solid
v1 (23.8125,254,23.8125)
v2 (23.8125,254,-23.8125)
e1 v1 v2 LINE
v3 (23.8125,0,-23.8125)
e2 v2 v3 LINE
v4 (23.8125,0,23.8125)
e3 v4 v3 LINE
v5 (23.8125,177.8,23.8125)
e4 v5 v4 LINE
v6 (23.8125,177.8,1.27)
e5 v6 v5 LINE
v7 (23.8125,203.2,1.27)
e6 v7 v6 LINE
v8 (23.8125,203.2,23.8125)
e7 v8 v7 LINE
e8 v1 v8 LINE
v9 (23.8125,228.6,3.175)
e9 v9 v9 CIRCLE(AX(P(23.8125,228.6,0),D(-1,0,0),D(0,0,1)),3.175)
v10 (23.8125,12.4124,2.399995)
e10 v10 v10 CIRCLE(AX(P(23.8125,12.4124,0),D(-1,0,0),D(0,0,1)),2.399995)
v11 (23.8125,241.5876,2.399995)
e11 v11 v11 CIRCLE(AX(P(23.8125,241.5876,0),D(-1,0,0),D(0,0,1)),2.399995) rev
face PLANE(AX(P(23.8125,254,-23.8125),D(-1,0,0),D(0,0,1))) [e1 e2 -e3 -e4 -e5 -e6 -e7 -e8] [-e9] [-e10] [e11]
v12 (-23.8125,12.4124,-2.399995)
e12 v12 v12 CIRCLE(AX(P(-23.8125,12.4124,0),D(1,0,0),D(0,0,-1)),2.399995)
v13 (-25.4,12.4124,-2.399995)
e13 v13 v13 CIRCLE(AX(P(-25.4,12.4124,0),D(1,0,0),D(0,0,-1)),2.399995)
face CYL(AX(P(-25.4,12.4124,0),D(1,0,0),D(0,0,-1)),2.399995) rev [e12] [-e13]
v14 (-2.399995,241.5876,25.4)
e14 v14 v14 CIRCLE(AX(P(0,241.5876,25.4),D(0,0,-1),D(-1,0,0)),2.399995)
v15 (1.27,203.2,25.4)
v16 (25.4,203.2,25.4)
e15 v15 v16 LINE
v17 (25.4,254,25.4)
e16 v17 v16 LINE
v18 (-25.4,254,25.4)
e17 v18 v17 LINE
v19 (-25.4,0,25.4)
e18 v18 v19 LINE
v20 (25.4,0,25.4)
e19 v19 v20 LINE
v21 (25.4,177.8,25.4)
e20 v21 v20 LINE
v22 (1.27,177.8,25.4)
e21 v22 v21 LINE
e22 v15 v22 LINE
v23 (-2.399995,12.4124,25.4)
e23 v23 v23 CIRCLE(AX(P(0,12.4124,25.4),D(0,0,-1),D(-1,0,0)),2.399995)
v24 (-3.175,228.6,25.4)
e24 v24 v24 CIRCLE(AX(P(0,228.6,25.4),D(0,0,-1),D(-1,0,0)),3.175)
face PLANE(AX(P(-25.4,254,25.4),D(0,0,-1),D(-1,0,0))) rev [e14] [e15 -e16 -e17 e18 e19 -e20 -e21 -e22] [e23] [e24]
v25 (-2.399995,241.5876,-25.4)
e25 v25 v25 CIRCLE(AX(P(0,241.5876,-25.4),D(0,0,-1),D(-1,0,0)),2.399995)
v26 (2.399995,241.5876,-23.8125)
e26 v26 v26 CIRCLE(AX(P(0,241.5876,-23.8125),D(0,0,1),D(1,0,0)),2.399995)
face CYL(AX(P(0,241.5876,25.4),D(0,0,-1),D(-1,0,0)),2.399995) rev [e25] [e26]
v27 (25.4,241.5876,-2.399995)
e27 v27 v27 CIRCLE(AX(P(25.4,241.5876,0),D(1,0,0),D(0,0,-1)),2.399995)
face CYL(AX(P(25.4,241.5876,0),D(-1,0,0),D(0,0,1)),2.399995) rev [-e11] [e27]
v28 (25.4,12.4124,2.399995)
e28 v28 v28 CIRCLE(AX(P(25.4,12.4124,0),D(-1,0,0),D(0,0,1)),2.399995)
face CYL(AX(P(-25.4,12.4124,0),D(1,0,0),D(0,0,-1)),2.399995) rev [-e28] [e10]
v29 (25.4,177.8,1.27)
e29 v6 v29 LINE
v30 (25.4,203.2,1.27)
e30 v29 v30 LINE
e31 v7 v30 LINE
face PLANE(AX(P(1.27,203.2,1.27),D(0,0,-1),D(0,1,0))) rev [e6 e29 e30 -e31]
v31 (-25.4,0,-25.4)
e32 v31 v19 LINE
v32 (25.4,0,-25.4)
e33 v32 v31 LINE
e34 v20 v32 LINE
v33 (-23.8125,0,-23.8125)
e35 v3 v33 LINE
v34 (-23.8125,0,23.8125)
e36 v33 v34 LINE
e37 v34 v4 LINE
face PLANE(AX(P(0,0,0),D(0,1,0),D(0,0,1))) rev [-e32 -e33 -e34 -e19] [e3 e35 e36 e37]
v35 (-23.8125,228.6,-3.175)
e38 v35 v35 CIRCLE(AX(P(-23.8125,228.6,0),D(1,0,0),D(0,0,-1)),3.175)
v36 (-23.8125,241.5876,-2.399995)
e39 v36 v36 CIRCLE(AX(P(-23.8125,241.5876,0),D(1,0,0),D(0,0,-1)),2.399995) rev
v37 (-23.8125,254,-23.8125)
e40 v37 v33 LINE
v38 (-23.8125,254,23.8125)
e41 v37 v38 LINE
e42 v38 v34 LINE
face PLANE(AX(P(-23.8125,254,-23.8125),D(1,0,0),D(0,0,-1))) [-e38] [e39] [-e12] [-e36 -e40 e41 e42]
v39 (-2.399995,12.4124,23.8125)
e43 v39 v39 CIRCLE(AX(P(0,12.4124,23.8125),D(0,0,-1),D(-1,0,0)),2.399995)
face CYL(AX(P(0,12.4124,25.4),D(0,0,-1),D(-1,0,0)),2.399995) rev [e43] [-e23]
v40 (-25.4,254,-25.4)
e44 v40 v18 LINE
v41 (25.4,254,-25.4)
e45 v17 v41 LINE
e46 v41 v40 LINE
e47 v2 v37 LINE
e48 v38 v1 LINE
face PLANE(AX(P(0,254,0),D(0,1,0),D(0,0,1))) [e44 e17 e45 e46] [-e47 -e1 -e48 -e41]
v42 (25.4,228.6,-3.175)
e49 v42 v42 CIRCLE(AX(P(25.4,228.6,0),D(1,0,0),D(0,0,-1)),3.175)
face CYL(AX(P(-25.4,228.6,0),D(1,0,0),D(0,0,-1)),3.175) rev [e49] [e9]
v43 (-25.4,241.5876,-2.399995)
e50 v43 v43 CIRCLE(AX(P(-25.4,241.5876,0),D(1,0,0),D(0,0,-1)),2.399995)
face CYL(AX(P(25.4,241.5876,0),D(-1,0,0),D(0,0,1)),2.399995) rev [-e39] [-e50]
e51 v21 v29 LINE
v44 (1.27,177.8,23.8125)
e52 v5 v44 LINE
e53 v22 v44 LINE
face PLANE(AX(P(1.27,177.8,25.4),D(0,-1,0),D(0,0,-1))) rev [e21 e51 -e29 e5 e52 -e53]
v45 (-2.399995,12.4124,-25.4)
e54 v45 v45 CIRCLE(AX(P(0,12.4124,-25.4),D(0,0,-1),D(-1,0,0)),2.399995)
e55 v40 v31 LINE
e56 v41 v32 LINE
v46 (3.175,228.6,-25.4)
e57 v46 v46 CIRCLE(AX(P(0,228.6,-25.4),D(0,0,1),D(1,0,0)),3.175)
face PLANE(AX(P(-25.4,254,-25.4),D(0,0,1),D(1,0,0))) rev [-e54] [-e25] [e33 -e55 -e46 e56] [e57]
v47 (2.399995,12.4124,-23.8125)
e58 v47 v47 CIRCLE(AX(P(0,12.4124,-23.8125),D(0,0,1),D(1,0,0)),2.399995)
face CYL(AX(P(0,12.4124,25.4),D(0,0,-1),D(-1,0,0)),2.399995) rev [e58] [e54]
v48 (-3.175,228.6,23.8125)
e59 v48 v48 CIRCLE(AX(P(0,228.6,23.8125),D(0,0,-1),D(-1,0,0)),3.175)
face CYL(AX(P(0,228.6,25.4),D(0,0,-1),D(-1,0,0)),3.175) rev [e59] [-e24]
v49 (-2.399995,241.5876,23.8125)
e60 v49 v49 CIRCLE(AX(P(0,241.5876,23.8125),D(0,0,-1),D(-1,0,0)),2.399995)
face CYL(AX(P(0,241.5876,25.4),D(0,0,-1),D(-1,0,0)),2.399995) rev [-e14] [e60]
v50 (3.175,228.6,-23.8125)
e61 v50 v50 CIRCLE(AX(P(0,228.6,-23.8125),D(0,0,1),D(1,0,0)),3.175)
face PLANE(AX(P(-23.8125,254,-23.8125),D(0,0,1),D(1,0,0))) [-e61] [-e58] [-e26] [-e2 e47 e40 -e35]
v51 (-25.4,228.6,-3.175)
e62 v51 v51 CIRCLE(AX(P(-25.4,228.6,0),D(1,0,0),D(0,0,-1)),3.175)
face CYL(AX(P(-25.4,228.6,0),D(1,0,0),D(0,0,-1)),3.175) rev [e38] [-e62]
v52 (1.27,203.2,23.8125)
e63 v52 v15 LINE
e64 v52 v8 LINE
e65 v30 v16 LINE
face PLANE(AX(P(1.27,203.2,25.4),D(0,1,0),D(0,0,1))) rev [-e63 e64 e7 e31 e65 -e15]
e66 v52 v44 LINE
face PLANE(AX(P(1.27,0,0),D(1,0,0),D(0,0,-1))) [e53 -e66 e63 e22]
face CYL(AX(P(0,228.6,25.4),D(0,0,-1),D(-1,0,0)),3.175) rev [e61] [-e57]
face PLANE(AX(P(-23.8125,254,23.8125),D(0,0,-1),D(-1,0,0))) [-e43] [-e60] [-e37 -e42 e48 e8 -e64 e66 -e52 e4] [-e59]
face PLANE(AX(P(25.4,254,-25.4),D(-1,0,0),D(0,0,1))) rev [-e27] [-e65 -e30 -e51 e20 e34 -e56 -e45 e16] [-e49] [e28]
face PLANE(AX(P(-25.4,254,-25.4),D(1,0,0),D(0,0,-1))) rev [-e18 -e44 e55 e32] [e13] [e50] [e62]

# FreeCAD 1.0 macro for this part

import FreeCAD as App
import Part
import Sketcher
Q = App.Units.Quantity


def add_polygon(sketch, points):
    """Adds a closed chain of lines whose ends are joined by coincident constraints."""
    first, n = sketch.GeometryCount, len(points)
    for a, b in zip(points, points[1:] + points[:1]):
        sketch.addGeometry(Part.LineSegment(App.Vector(*a, 0), App.Vector(*b, 0)), False)
    for i in range(n):
        sketch.addConstraint(Sketcher.Constraint("Coincident", first + i, 2, first + (i + 1) % n, 1))

doc = App.newDocument("Part")
params = doc.addObject("Spreadsheet::Sheet", "Params")
for row, (alias, value) in enumerate([
    ("sketch1_width", "2 in"),
    ("sketch1_width2", "1.875 in"),
    ("pad1_length", "10 in"),
    ("sketch6_diameter", "0.25 in"),
    ("sketch7_diameter", "0.25 in"),
    ("sketch8_width", "1 in"),
    ("sketch8_height", "0.95 in"),
    ("pocket7_length", "0.95 in"),
], start=1):
    params.set(f"A{row}", alias)
    params.set(f"B{row}", "=" + value)
    params.setAlias(f"B{row}", alias)

body = doc.addObject("PartDesign::Body", "Body")

# Sketch on XZ plane
sketch1 = body.newObject("Sketcher::SketchObject", "Sketch")
sketch1.AttachmentSupport = (doc.getObject("XZ_Plane"), [""])
sketch1.MapMode = "FlatFace"
add_polygon(sketch1, [(-25, -25), (-25, 25), (25, 25), (25, -25)])  # lines 0-3
add_polygon(sketch1, [(24, 24), (-24, 24), (-24, -24), (24, -24)])  # lines 4-7
sketch1.addConstraint(Sketcher.Constraint("Vertical", 0))
sketch1.addConstraint(Sketcher.Constraint("Horizontal", 1))
sketch1.addConstraint(Sketcher.Constraint("Vertical", 2))
sketch1.addConstraint(Sketcher.Constraint("Horizontal", 3))
sketch1.addConstraint(Sketcher.Constraint("Horizontal", 4))
sketch1.addConstraint(Sketcher.Constraint("Vertical", 5))
sketch1.addConstraint(Sketcher.Constraint("Horizontal", 6))
sketch1.addConstraint(Sketcher.Constraint("Vertical", 7))
sketch1.addConstraint(Sketcher.Constraint("Symmetric", 0, 2, 2, 2, -1, 1))
sketch1.addConstraint(Sketcher.Constraint("Symmetric", 4, 2, 6, 2, -1, 1))
sketch1.addConstraint(Sketcher.Constraint("Equal", 3, 0))
sketch1.addConstraint(Sketcher.Constraint("Equal", 6, 5))
sketch1.addConstraint(Sketcher.Constraint("DistanceX", 1, 1, 1, 2, Q("2 in")))
sketch1.addConstraint(Sketcher.Constraint("DistanceX", 4, 2, 4, 1, Q("1.875 in")))
sketch1.setExpression("Constraints[20]", "Params.sketch1_width")
sketch1.setExpression("Constraints[21]", "Params.sketch1_width2")
pad1 = body.newObject("PartDesign::Pad", "Pad")
pad1.Profile = sketch1
pad1.setExpression("Length", "Params.pad1_length")
pad1.Reversed = True

# Sketch on YZ plane
sketch2 = body.newObject("Sketcher::SketchObject", "Sketch001")
sketch2.AttachmentSupport = (doc.getObject("YZ_Plane"), [""])
sketch2.MapMode = "FlatFace"
sketch2.AttachmentOffset = App.Placement(App.Vector(0, 0, -0.9375 * 25.4), App.Rotation())
sketch2.addGeometry(Part.Circle(App.Vector(241.6, 0, 0), App.Vector(0, 0, 1), 2.4), False)
sketch2.addConstraint(Sketcher.Constraint("PointOnObject", 0, 3, -1))
sketch2.addConstraint(Sketcher.Constraint("Diameter", 0, Q("4.79999 mm")))
sketch2.addConstraint(Sketcher.Constraint("DistanceX", -1, 1, 0, 3, Q("241.5876 mm")))
pocket1 = body.newObject("PartDesign::Pocket", "Pocket")
pocket1.Profile = sketch2
pocket1.Type = "ThroughAll"
pocket1.Midplane = True

# Sketch on XY plane
sketch3 = body.newObject("Sketcher::SketchObject", "Sketch002")
sketch3.AttachmentSupport = (doc.getObject("XY_Plane"), [""])
sketch3.MapMode = "FlatFace"
sketch3.AttachmentOffset = App.Placement(App.Vector(0, 0, -1 * 25.4), App.Rotation())
sketch3.addGeometry(Part.Circle(App.Vector(0, 241.6, 0), App.Vector(0, 0, 1), 2.4), False)
sketch3.addConstraint(Sketcher.Constraint("PointOnObject", 0, 3, -2))
sketch3.addConstraint(Sketcher.Constraint("Diameter", 0, Q("4.79999 mm")))
sketch3.addConstraint(Sketcher.Constraint("DistanceY", -1, 1, 0, 3, Q("241.5876 mm")))
pocket2 = body.newObject("PartDesign::Pocket", "Pocket001")
pocket2.Profile = sketch3
pocket2.Type = "ThroughAll"
pocket2.Reversed = True

# Sketch on YZ plane
sketch4 = body.newObject("Sketcher::SketchObject", "Sketch003")
sketch4.AttachmentSupport = (doc.getObject("YZ_Plane"), [""])
sketch4.MapMode = "FlatFace"
sketch4.AttachmentOffset = App.Placement(App.Vector(0, 0, 1 * 25.4), App.Rotation())
sketch4.addGeometry(Part.Circle(App.Vector(12.4, 0, 0), App.Vector(0, 0, 1), 2.4), False)
sketch4.addConstraint(Sketcher.Constraint("PointOnObject", 0, 3, -1))
sketch4.addConstraint(Sketcher.Constraint("Diameter", 0, Q("4.79999 mm")))
sketch4.addConstraint(Sketcher.Constraint("DistanceX", -1, 1, 0, 3, Q("12.4124 mm")))
pocket3 = body.newObject("PartDesign::Pocket", "Pocket002")
pocket3.Profile = sketch4
pocket3.Type = "ThroughAll"
pocket3.Midplane = True

# Sketch on XY plane
sketch5 = body.newObject("Sketcher::SketchObject", "Sketch004")
sketch5.AttachmentSupport = (doc.getObject("XY_Plane"), [""])
sketch5.MapMode = "FlatFace"
sketch5.AttachmentOffset = App.Placement(App.Vector(0, 0, -1 * 25.4), App.Rotation())
sketch5.addGeometry(Part.Circle(App.Vector(0, 12.4, 0), App.Vector(0, 0, 1), 2.4), False)
sketch5.addConstraint(Sketcher.Constraint("PointOnObject", 0, 3, -2))
sketch5.addConstraint(Sketcher.Constraint("Diameter", 0, Q("4.79999 mm")))
sketch5.addConstraint(Sketcher.Constraint("DistanceY", -1, 1, 0, 3, Q("12.4124 mm")))
pocket4 = body.newObject("PartDesign::Pocket", "Pocket003")
pocket4.Profile = sketch5
pocket4.Type = "ThroughAll"
pocket4.Midplane = True

# Sketch on XY plane
sketch6 = body.newObject("Sketcher::SketchObject", "Sketch005")
sketch6.AttachmentSupport = (doc.getObject("XY_Plane"), [""])
sketch6.MapMode = "FlatFace"
sketch6.AttachmentOffset = App.Placement(App.Vector(0, 0, -1 * 25.4), App.Rotation())
sketch6.addGeometry(Part.Circle(App.Vector(0, 228.6, 0), App.Vector(0, 0, 1), 3.2), False)
sketch6.addConstraint(Sketcher.Constraint("PointOnObject", 0, 3, -2))
sketch6.addConstraint(Sketcher.Constraint("Diameter", 0, Q("0.25 in")))
sketch6.addConstraint(Sketcher.Constraint("DistanceY", -1, 1, 0, 3, Q("9 in")))
sketch6.setExpression("Constraints[1]", "Params.sketch6_diameter")
pocket5 = body.newObject("PartDesign::Pocket", "Pocket004")
pocket5.Profile = sketch6
pocket5.Type = "ThroughAll"
pocket5.Midplane = True

# Sketch on YZ plane
sketch7 = body.newObject("Sketcher::SketchObject", "Sketch006")
sketch7.AttachmentSupport = (doc.getObject("YZ_Plane"), [""])
sketch7.MapMode = "FlatFace"
sketch7.AttachmentOffset = App.Placement(App.Vector(0, 0, 1 * 25.4), App.Rotation())
sketch7.addGeometry(Part.Circle(App.Vector(228.6, 0, 0), App.Vector(0, 0, 1), 3.2), False)
sketch7.addConstraint(Sketcher.Constraint("PointOnObject", 0, 3, -1))
sketch7.addConstraint(Sketcher.Constraint("Diameter", 0, Q("0.25 in")))
sketch7.addConstraint(Sketcher.Constraint("DistanceX", -1, 1, 0, 3, Q("9 in")))
sketch7.setExpression("Constraints[1]", "Params.sketch7_diameter")
pocket6 = body.newObject("PartDesign::Pocket", "Pocket005")
pocket6.Profile = sketch7
pocket6.Type = "ThroughAll"
pocket6.Midplane = True

# Sketch on YZ plane
sketch8 = body.newObject("Sketcher::SketchObject", "Sketch007")
sketch8.AttachmentSupport = (doc.getObject("YZ_Plane"), [""])
sketch8.MapMode = "FlatFace"
sketch8.AttachmentOffset = App.Placement(App.Vector(0, 0, 1 * 25.4), App.Rotation())
add_polygon(sketch8, [(203, 25), (178, 25), (178, 1), (203, 1)])  # lines 0-3
sketch8.addConstraint(Sketcher.Constraint("Horizontal", 0))
sketch8.addConstraint(Sketcher.Constraint("Vertical", 1))
sketch8.addConstraint(Sketcher.Constraint("Horizontal", 2))
sketch8.addConstraint(Sketcher.Constraint("Vertical", 3))
sketch8.addConstraint(Sketcher.Constraint("DistanceX", 0, 2, 0, 1, Q("1 in")))
sketch8.addConstraint(Sketcher.Constraint("DistanceX", -1, 1, 0, 2, Q("7 in")))
sketch8.addConstraint(Sketcher.Constraint("DistanceY", -1, 1, 0, 2, Q("1 in")))
sketch8.addConstraint(Sketcher.Constraint("DistanceY", 1, 2, 1, 1, Q("0.95 in")))
sketch8.setExpression("Constraints[8]", "Params.sketch8_width")
sketch8.setExpression("Constraints[11]", "Params.sketch8_height")
pocket7 = body.newObject("PartDesign::Pocket", "Pocket006")
pocket7.Profile = sketch8
pocket7.setExpression("Length", "Params.pocket7_length")

doc.recompute()
